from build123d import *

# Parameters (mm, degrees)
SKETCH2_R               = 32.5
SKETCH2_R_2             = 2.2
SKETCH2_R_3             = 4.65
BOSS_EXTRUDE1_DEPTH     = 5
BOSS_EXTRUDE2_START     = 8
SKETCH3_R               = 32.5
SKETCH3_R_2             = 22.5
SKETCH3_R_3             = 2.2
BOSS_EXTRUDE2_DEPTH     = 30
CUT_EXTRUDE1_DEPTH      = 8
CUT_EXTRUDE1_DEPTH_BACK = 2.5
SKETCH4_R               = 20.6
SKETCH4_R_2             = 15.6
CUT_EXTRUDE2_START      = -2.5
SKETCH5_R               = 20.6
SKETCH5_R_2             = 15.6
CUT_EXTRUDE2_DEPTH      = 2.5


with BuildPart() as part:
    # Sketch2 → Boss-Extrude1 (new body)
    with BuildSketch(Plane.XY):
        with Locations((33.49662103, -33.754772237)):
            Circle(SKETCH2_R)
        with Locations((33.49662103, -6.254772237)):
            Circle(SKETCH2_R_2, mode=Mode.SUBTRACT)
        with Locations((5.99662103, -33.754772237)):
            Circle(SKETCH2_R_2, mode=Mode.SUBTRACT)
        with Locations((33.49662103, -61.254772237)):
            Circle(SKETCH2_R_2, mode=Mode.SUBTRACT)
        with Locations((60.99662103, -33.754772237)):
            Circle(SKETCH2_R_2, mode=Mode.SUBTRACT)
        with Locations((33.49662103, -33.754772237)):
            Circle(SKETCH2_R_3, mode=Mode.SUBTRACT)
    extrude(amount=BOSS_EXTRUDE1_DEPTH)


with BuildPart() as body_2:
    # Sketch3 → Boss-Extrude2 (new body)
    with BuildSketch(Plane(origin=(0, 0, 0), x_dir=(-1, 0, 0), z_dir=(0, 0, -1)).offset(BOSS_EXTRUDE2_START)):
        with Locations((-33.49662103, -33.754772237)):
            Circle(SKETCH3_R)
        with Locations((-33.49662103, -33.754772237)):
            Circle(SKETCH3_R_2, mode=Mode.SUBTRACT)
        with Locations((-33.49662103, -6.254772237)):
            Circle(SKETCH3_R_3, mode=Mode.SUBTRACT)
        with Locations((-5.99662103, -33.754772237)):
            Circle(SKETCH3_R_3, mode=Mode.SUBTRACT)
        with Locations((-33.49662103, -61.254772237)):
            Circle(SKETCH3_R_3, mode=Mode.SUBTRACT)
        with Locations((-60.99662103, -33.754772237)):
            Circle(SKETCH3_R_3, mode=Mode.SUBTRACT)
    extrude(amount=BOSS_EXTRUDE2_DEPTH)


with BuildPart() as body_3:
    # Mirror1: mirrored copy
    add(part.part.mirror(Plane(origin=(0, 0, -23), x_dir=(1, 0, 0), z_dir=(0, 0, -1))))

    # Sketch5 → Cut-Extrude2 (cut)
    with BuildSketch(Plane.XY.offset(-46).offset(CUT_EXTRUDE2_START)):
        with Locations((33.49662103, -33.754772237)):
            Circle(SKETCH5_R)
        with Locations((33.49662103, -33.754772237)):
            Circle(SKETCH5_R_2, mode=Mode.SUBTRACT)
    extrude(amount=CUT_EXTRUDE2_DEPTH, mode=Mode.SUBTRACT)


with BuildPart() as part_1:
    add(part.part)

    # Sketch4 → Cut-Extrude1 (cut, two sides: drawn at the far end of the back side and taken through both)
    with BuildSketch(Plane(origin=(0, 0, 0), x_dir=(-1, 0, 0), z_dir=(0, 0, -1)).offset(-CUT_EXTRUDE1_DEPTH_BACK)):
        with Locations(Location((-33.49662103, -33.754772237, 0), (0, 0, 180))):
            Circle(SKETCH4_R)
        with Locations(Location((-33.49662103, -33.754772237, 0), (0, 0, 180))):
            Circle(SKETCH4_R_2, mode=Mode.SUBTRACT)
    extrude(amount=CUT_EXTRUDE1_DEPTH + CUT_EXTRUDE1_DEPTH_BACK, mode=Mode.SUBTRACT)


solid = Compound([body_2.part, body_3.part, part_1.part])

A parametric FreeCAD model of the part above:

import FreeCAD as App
import Part
import Sketcher

V = App.Vector
Q = App.Units.Quantity

doc = App.newDocument("Part")
body = doc.addObject("PartDesign::Body", "Body")

# Sketch on XY plane
sketch1 = body.newObject("Sketcher::SketchObject", "Sketch")
sketch1.AttachmentSupport = (doc.getObject("XY_Plane"), [""])
sketch1.MapMode = "FlatFace"
sketch1.addGeometry([
    Part.Circle(V(33.5, -33.8, 0), V(0, 0, 1), 32.5),  # 0
    Part.Circle(V(33.5, -61.3, 0), V(0, 0, 1), 2.2),  # 1
    Part.Circle(V(6, -33.8, 0), V(0, 0, 1), 2.2),  # 2
    Part.Circle(V(33.5, -33.8, 0), V(0, 0, 1), 4.7),  # 3
    Part.Circle(V(61, -33.8, 0), V(0, 0, 1), 2.2),  # 4
    Part.Circle(V(33.5, -6.3, 0), V(0, 0, 1), 2.2),  # 5
], False)
sketch1.addConstraint([
    Sketcher.Constraint("Coincident", 3, 3, 0, 3),
    Sketcher.Constraint("Equal", 1, 2),
    Sketcher.Constraint("Equal", 2, 4),
    Sketcher.Constraint("Equal", 4, 5),
    Sketcher.Constraint("Horizontal", 0, 3, 2, 3),
    Sketcher.Constraint("Horizontal", 3, 3, 4, 3),
    Sketcher.Constraint("Vertical", 0, 3, 1, 3),
    Sketcher.Constraint("Vertical", 3, 3, 5, 3),
    Sketcher.Constraint("Diameter", 0, Q("65 mm")),
    Sketcher.Constraint("Diameter", 1, Q("4.4 mm")),
    Sketcher.Constraint("Diameter", 3, Q("9.3 mm")),
    Sketcher.Constraint("DistanceX", 2, 3, 4, 3, Q("55 mm")),
    Sketcher.Constraint("DistanceY", 1, 3, 5, 3, Q("55 mm")),
    Sketcher.Constraint("DistanceY", 1, 3, 0, 3, Q("27.5 mm")),
    Sketcher.Constraint("DistanceX", 2, 3, 0, 3, Q("27.5 mm")),
    Sketcher.Constraint("DistanceX", -1, 1, 0, 3, Q("33.496621 mm")),
    Sketcher.Constraint("DistanceY", 0, 3, -1, 1, Q("33.754772 mm")),
])
pad1 = body.newObject("PartDesign::Pad", "Pad")
pad1.Profile = sketch1
pad1.Length = 5
body2 = doc.addObject("PartDesign::Body", "Body001")

# Sketch on XY plane
sketch2 = body2.newObject("Sketcher::SketchObject", "Sketch001")
sketch2.AttachmentSupport = (doc.getObject("XY_Plane001"), [""])
sketch2.MapMode = "FlatFace"
sketch2.AttachmentOffset = App.Placement(V(0, 0, -8), App.Rotation())
sketch2.addGeometry([
    Part.Circle(V(33.5, -33.8, 0), V(0, 0, 1), 32.5),  # 0
    Part.Circle(V(33.5, -61.3, 0), V(0, 0, 1), 2.2),  # 1
    Part.Circle(V(61, -33.8, 0), V(0, 0, 1), 2.2),  # 2
    Part.Circle(V(33.5, -33.8, 0), V(0, 0, 1), 22.5),  # 3
    Part.Circle(V(6, -33.8, 0), V(0, 0, 1), 2.2),  # 4
    Part.Circle(V(33.5, -6.3, 0), V(0, 0, 1), 2.2),  # 5
], False)
sketch2.addConstraint([
    Sketcher.Constraint("Coincident", 3, 3, 0, 3),
    Sketcher.Constraint("Equal", 1, 2),
    Sketcher.Constraint("Equal", 2, 4),
    Sketcher.Constraint("Equal", 4, 5),
    Sketcher.Constraint("Horizontal", 0, 3, 2, 3),
    Sketcher.Constraint("Horizontal", 3, 3, 4, 3),
    Sketcher.Constraint("Vertical", 0, 3, 1, 3),
    Sketcher.Constraint("Vertical", 3, 3, 5, 3),
    Sketcher.Constraint("Diameter", 0, Q("65 mm")),
    Sketcher.Constraint("Diameter", 3, Q("45 mm")),
    Sketcher.Constraint("Diameter", 1, Q("4.4 mm")),
    Sketcher.Constraint("DistanceX", 4, 3, 2, 3, Q("55 mm")),
    Sketcher.Constraint("DistanceY", 1, 3, 5, 3, Q("55 mm")),
    Sketcher.Constraint("DistanceY", 1, 3, 0, 3, Q("27.5 mm")),
    Sketcher.Constraint("DistanceX", 0, 3, 2, 3, Q("27.5 mm")),
    Sketcher.Constraint("DistanceX", -1, 1, 0, 3, Q("33.496621 mm")),
    Sketcher.Constraint("DistanceY", 0, 3, -1, 1, Q("33.754772 mm")),
])
pad2 = body2.newObject("PartDesign::Pad", "Pad001")
pad2.Profile = sketch2
pad2.Length = 30
pad2.Reversed = True
body3 = doc.addObject("PartDesign::Body", "Body002")
doc.recompute()

mirroring = doc.addObject("Part::Mirroring", "Mirroring")
mirroring.Source = body
mirroring.Base = V(0, 0, -23)
mirroring.Normal = V(0, 0, -1)
body3.BaseFeature = mirroring
doc.recompute()

# Sketch on XY plane
sketch3 = body3.newObject("Sketcher::SketchObject", "Sketch002")
sketch3.AttachmentSupport = (doc.getObject("XY_Plane002"), [""])
sketch3.MapMode = "FlatFace"
sketch3.AttachmentOffset = App.Placement(V(0, 0, -48.5), App.Rotation())
sketch3.addGeometry([
    Part.Circle(V(33, -34, 0), V(0, 0, 1), 21),
    Part.Circle(V(33, -34, 0), V(0, 0, 1), 16),
], False)
sketch3.addConstraint([
    Sketcher.Constraint("Coincident", 1, 3, 0, 3),
    Sketcher.Constraint("Diameter", 0, Q("41.2 mm")),
    Sketcher.Constraint("Diameter", 1, Q("31.2 mm")),
    Sketcher.Constraint("DistanceX", -1, 1, 0, 3, Q("33.496621 mm")),
    Sketcher.Constraint("DistanceY", 0, 3, -1, 1, Q("33.754772 mm")),
])
pocket1 = body3.newObject("PartDesign::Pocket", "Pocket")
pocket1.Profile = sketch3
pocket1.Length = 2.5
pocket1.Reversed = True

# Sketch on XY plane
sketch4 = body.newObject("Sketcher::SketchObject", "Sketch003")
sketch4.AttachmentSupport = (doc.getObject("XY_Plane"), [""])
sketch4.MapMode = "FlatFace"
sketch4.addGeometry([
    Part.Circle(V(33, -34, 0), V(0, 0, 1), 21),
    Part.Circle(V(33, -34, 0), V(0, 0, 1), 16),
], False)
sketch4.addConstraint([
    Sketcher.Constraint("Coincident", 1, 3, 0, 3),
    Sketcher.Constraint("Diameter", 0, Q("41.2 mm")),
    Sketcher.Constraint("Diameter", 1, Q("31.2 mm")),
    Sketcher.Constraint("DistanceX", -1, 1, 0, 3, Q("33.496621 mm")),
    Sketcher.Constraint("DistanceY", 0, 3, -1, 1, Q("33.754772 mm")),
])
pocket2 = body.newObject("PartDesign::Pocket", "Pocket001")
pocket2.Profile = sketch4
pocket2.Type = "TwoLengths"
pocket2.Length = 8
pocket2.Length2 = 2.5
mirroring.Visibility = False

doc.recompute()
